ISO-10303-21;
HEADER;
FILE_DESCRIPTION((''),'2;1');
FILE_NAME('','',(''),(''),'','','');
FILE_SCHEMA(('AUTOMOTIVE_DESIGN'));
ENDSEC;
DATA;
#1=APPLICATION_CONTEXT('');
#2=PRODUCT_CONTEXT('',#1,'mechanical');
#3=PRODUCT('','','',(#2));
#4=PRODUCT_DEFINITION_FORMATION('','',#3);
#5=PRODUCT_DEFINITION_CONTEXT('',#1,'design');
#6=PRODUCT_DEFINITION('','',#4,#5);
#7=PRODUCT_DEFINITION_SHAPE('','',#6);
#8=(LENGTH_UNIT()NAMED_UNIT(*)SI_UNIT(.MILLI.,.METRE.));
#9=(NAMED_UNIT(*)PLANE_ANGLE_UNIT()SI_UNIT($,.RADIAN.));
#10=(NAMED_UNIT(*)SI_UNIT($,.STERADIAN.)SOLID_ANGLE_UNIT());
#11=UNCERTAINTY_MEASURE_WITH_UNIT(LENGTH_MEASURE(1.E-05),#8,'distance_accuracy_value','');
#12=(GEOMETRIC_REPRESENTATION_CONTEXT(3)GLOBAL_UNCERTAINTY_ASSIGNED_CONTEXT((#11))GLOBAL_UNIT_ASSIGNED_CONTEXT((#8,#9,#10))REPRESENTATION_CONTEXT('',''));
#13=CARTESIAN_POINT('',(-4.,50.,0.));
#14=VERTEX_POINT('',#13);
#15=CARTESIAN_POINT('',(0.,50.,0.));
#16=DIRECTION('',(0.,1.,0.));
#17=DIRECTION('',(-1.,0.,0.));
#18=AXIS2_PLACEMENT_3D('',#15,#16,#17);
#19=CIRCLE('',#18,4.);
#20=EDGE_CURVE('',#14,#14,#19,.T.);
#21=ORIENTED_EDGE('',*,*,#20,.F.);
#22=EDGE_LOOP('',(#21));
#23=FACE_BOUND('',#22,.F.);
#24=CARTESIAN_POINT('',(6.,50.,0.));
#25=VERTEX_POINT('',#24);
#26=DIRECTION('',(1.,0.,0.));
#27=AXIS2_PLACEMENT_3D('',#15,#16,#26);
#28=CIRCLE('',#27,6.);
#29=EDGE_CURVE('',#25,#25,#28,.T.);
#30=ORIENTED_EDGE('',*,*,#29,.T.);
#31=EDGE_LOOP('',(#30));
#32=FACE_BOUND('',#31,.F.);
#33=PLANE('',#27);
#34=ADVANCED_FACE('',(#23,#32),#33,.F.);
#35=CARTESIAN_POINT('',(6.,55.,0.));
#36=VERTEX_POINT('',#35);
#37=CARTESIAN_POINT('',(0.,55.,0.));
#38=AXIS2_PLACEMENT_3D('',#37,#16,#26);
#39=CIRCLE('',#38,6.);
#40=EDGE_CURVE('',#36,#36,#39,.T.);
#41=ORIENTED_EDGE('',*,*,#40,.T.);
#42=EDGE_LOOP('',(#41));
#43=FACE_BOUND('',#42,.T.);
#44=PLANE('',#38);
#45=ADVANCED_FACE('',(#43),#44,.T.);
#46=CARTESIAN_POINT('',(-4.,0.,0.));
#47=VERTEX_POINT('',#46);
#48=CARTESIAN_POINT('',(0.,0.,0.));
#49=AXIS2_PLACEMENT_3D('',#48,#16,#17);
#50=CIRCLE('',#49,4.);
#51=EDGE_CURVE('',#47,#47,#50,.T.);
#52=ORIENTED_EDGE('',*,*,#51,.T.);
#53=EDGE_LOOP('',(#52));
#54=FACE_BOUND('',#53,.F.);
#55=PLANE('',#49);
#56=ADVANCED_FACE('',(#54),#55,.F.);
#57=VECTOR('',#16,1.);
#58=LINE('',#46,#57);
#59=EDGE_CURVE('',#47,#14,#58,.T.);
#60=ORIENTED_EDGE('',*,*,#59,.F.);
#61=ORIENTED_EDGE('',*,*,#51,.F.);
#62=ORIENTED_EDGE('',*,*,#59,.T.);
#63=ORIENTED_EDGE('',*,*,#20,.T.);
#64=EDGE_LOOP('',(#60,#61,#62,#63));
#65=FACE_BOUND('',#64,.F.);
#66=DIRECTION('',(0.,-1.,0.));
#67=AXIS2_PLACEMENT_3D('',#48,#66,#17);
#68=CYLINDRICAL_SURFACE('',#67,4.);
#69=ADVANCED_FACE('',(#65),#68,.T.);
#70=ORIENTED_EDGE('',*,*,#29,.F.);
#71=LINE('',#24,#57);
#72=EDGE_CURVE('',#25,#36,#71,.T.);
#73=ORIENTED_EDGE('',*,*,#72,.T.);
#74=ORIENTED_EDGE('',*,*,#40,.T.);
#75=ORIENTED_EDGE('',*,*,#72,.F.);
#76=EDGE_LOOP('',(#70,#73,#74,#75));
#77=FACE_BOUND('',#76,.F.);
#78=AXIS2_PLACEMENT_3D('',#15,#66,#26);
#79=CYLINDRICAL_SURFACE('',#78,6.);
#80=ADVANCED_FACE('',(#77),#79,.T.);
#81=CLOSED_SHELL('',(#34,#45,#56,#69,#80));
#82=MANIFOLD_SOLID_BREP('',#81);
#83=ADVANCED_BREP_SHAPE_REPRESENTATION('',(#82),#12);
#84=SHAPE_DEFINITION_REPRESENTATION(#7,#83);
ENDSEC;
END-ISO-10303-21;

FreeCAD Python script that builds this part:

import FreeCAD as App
import Part
import Sketcher

V = App.Vector

doc = App.newDocument("Part")
params = doc.addObject("Spreadsheet::Sheet", "Params")
for row, (alias, value) in enumerate([
    ("sketch1_diameter", "8 mm"),
    ("pad1_length", "50 mm"),
    ("sketch2_diameter", "12 mm"),
    ("pad2_length", "5 mm"),
], start=1):
    params.set(f"A{row}", alias)
    params.set(f"B{row}", "=" + value)
    params.setAlias(f"B{row}", alias)

body = doc.addObject("PartDesign::Body", "Body")

# Sketch on XZ plane
sketch1 = doc.addObject("Sketcher::SketchObject", "Sketch")
body.addObject(sketch1)
sketch1.AttachmentSupport = (doc.XZ_Plane, [""])
sketch1.MapMode = "FlatFace"
sketch1.addGeometry(Part.Circle(V(0, 0, 0), V(0, 0, 1), 4), False)
sketch1.addConstraint([
    Sketcher.Constraint("Coincident", 0, 3, -1, 1),
    Sketcher.Constraint("Diameter", 0, 8.0),
])
sketch1.setExpression("Constraints[1]", "Params.sketch1_diameter")
pad1 = doc.addObject("PartDesign::Pad", "Pad")
body.addObject(pad1)
pad1.Profile = sketch1
pad1.setExpression("Length", "Params.pad1_length")
pad1.Reversed = True

# Sketch on XZ plane
sketch2 = doc.addObject("Sketcher::SketchObject", "Sketch001")
body.addObject(sketch2)
sketch2.AttachmentSupport = (doc.XZ_Plane, [""])
sketch2.MapMode = "FlatFace"
sketch2.AttachmentOffset = App.Placement(V(0, 0, -50), App.Rotation())
sketch2.addGeometry(Part.Circle(V(0, 0, 0), V(0, 0, 1), 6), False)
sketch2.addConstraint([
    Sketcher.Constraint("Coincident", 0, 3, -1, 1),
    Sketcher.Constraint("Diameter", 0, 12.0),
])
sketch2.setExpression("Constraints[1]", "Params.sketch2_diameter")
pad2 = doc.addObject("PartDesign::Pad", "Pad001")
body.addObject(pad2)
pad2.Profile = sketch2
pad2.setExpression("Length", "Params.pad2_length")
pad2.Reversed = True

doc.recompute()
